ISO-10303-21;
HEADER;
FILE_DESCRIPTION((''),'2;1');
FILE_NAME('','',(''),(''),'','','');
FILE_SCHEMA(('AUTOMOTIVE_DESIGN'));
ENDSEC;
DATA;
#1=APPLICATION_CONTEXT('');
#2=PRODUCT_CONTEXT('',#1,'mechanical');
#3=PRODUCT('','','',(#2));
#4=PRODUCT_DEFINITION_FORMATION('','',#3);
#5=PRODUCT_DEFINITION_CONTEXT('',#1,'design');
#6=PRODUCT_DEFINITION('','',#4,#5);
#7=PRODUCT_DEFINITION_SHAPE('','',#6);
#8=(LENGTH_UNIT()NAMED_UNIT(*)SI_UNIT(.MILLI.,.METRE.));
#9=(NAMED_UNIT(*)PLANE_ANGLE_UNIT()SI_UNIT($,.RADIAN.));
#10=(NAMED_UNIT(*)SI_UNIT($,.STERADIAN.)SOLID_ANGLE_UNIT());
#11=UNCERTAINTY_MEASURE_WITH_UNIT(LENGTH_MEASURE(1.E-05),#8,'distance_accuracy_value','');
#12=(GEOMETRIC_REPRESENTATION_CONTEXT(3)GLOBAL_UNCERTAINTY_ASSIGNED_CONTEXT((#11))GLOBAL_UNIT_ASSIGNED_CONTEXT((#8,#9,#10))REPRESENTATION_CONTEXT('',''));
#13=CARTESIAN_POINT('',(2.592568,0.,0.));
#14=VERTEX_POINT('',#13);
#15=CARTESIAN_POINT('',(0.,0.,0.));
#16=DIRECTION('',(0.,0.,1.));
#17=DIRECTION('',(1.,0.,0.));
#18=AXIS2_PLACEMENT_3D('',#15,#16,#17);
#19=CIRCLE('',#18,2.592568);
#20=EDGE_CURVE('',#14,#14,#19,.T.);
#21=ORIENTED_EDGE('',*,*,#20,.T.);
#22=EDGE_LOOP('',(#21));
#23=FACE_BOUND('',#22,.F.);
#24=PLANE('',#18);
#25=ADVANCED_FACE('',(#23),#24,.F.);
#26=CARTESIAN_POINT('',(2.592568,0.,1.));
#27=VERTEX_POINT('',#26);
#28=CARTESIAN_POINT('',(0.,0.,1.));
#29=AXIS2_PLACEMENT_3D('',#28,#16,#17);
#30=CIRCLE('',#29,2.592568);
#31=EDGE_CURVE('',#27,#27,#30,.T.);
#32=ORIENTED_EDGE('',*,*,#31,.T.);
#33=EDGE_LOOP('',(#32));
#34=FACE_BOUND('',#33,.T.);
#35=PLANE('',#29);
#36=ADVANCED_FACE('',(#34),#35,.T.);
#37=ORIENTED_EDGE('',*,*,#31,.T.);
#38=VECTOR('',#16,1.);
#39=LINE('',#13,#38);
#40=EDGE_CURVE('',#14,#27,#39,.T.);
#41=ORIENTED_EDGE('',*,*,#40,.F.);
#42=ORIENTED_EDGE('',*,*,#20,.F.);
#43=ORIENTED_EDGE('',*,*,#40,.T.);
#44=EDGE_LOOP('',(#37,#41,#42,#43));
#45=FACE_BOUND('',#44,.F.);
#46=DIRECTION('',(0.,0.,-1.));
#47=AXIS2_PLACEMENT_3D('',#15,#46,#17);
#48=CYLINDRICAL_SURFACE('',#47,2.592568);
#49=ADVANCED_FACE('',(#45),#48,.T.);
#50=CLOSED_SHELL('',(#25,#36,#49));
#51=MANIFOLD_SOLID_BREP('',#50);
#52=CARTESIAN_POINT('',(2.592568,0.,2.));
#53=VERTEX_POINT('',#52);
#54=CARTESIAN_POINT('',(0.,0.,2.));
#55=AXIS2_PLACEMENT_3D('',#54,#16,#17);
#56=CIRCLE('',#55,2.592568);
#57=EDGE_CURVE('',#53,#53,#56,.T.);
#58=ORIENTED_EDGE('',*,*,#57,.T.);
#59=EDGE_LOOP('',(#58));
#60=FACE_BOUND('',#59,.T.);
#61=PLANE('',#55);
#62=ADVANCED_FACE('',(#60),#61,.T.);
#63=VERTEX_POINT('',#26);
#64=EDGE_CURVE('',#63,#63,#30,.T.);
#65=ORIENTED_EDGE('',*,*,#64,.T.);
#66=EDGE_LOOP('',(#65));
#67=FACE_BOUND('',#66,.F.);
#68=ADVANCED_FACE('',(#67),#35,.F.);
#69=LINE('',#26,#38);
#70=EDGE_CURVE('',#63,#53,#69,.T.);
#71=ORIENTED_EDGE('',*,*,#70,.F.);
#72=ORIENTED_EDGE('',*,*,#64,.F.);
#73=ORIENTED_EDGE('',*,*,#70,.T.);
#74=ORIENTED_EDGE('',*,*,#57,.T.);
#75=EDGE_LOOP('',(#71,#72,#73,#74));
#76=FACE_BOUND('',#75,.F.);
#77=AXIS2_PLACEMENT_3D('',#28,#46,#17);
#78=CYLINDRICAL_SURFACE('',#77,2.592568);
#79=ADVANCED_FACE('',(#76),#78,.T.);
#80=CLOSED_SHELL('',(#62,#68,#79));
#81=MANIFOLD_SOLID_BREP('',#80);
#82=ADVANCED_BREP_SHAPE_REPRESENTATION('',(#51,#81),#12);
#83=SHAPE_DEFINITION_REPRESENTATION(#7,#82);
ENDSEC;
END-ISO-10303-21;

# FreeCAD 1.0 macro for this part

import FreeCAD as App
import Part
import Sketcher

doc = App.newDocument("Part")
body = doc.addObject("PartDesign::Body", "Body")

# Sketch on XY plane
sketch1 = body.newObject("Sketcher::SketchObject", "Sketch")
sketch1.AttachmentSupport = (doc.getObject("XY_Plane"), [""])
sketch1.MapMode = "FlatFace"
sketch1.addGeometry(Part.Circle(App.Vector(0, 0, 0), App.Vector(0, 0, 1), 2.6), False)
sketch1.addConstraint([
    Sketcher.Constraint("Coincident", 0, 3, -1, 1),
    Sketcher.Constraint("Diameter", 0, 5.185136),
])
pad1 = body.newObject("PartDesign::Pad", "Pad")
pad1.Profile = sketch1
pad1.Length = 1
body2 = doc.addObject("PartDesign::Body", "Body001")

# Sketch on XY plane
sketch2 = body2.newObject("Sketcher::SketchObject", "Sketch001")
sketch2.AttachmentSupport = (doc.getObject("XY_Plane001"), [""])
sketch2.MapMode = "FlatFace"
sketch2.AttachmentOffset = App.Placement(App.Vector(0, 0, 1), App.Rotation())
sketch2.addGeometry(Part.Circle(App.Vector(0, 0, 0), App.Vector(0, 0, 1), 2.6), False)
sketch2.addConstraint([
    Sketcher.Constraint("Coincident", 0, 3, -1, 1),
    Sketcher.Constraint("Diameter", 0, 5.185136),
])
pad2 = body2.newObject("PartDesign::Pad", "Pad001")
pad2.Profile = sketch2
pad2.Length = 1

doc.recompute()
